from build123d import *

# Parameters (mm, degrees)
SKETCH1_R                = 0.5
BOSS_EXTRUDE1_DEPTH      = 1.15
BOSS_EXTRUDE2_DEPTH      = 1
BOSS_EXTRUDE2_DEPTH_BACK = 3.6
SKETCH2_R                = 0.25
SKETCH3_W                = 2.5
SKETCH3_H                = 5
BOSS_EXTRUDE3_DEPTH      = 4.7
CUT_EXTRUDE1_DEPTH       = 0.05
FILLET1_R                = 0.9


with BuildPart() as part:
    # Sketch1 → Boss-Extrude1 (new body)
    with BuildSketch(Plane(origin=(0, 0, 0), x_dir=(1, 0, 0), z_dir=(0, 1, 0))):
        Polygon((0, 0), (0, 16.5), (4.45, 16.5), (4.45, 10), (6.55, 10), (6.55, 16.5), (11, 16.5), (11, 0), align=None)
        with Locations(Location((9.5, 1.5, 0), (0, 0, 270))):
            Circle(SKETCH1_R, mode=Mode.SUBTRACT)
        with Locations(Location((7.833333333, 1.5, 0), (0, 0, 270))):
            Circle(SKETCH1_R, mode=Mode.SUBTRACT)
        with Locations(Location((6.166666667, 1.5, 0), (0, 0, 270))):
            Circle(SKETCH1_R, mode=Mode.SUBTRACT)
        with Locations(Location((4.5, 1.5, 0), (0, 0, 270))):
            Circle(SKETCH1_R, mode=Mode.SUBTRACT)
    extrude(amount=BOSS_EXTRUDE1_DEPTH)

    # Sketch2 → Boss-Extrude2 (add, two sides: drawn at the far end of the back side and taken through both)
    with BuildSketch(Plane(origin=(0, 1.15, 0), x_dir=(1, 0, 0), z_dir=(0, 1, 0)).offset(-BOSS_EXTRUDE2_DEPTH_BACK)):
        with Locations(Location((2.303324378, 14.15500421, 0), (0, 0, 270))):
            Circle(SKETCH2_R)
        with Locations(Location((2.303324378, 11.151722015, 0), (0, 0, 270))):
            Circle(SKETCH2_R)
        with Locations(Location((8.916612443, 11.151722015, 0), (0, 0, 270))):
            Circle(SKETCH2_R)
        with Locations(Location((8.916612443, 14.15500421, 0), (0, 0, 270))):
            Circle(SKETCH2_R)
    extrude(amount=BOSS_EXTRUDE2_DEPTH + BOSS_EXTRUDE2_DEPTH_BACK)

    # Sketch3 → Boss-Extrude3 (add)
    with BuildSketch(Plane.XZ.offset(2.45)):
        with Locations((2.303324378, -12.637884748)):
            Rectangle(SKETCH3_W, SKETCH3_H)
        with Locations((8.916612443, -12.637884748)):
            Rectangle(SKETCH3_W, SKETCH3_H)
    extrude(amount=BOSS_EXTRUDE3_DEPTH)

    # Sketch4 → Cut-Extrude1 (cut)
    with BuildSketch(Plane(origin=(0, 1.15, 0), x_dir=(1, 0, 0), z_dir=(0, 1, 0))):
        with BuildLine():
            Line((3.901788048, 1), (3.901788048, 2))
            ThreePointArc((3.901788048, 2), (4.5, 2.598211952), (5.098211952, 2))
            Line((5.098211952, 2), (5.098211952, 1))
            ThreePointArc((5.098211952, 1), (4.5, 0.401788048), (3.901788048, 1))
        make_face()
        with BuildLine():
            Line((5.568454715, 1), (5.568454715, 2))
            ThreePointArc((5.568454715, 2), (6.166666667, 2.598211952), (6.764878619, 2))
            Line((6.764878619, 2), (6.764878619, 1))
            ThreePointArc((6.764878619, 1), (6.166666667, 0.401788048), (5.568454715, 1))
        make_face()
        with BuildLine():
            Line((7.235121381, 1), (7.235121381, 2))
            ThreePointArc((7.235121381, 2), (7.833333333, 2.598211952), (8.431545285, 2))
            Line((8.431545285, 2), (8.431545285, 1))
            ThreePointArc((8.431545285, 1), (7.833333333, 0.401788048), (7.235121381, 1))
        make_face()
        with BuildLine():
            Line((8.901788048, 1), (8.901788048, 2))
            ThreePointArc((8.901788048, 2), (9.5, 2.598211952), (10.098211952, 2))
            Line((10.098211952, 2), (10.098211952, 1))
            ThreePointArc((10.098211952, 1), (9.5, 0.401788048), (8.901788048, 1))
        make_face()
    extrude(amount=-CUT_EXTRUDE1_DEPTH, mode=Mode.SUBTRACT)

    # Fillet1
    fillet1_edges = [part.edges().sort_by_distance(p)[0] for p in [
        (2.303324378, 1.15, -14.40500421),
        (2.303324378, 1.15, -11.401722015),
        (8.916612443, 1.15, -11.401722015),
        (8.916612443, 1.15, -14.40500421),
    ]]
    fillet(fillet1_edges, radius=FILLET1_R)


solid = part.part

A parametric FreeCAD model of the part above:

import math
import FreeCAD as App
import Part
import Sketcher
from FreeCAD import Vector
Q = App.Units.Quantity


def edges_at(feature, points):
    """Names of the edges that pass closest to the given points."""
    edges = feature.Shape.Edges
    near = lambda p: min(range(len(edges)), key=lambda i: edges[i].distToShape(Part.Vertex(*p))[0])
    return sorted({f"Edge{near(p) + 1}" for p in points})

doc = App.newDocument("Part")
body = doc.addObject("PartDesign::Body", "Body")

# Sketch on XZ plane
sketch1 = body.newObject("Sketcher::SketchObject", "Sketch")
sketch1.AttachmentSupport = (doc.getObject("XZ_Plane"), [""])
sketch1.MapMode = "FlatFace"
sketch1.addGeometry(Part.LineSegment(Vector(0, -16.5, 0), Vector(0, 0, 0)), False)
sketch1.addGeometry(Part.LineSegment(Vector(0, 0, 0), Vector(11, 0, 0)), False)
sketch1.addGeometry(Part.LineSegment(Vector(11, 0, 0), Vector(11, -16.5, 0)), False)
sketch1.addGeometry(Part.LineSegment(Vector(11, -16.5, 0), Vector(6.5, -16.5, 0)), False)
sketch1.addGeometry(Part.LineSegment(Vector(6.5, -16.5, 0), Vector(6.5, -10, 0)), False)
sketch1.addGeometry(Part.LineSegment(Vector(6.5, -10, 0), Vector(4.5, -10, 0)), False)
sketch1.addGeometry(Part.LineSegment(Vector(4.5, -10, 0), Vector(4.5, -16.5, 0)), False)
sketch1.addGeometry(Part.LineSegment(Vector(4.5, -16.5, 0), Vector(0, -16.5, 0)), False)
sketch1.addGeometry(Part.Circle(Vector(9.5, -1.5, 0), Vector(0, 0, 1), 0.5), False)
sketch1.addGeometry(Part.Circle(Vector(7.8, -1.5, 0), Vector(0, 0, 1), 0.5), False)
sketch1.addGeometry(Part.Circle(Vector(6.2, -1.5, 0), Vector(0, 0, 1), 0.5), False)
sketch1.addGeometry(Part.Circle(Vector(4.5, -1.5, 0), Vector(0, 0, 1), 0.5), False)
sketch1.addConstraint(Sketcher.Constraint("Coincident", 0, 2, 1, 1))
sketch1.addConstraint(Sketcher.Constraint("Coincident", 1, 2, 2, 1))
sketch1.addConstraint(Sketcher.Constraint("Coincident", 2, 2, 3, 1))
sketch1.addConstraint(Sketcher.Constraint("Coincident", 3, 2, 4, 1))
sketch1.addConstraint(Sketcher.Constraint("Coincident", 4, 2, 5, 1))
sketch1.addConstraint(Sketcher.Constraint("Coincident", 5, 2, 6, 1))
sketch1.addConstraint(Sketcher.Constraint("Coincident", 6, 2, 7, 1))
sketch1.addConstraint(Sketcher.Constraint("Coincident", 7, 2, 0, 1))
sketch1.addConstraint(Sketcher.Constraint("Vertical", 0))
sketch1.addConstraint(Sketcher.Constraint("Horizontal", 1))
sketch1.addConstraint(Sketcher.Constraint("Vertical", 2))
sketch1.addConstraint(Sketcher.Constraint("Horizontal", 3))
sketch1.addConstraint(Sketcher.Constraint("Vertical", 4))
sketch1.addConstraint(Sketcher.Constraint("Horizontal", 5))
sketch1.addConstraint(Sketcher.Constraint("Vertical", 6))
sketch1.addConstraint(Sketcher.Constraint("Horizontal", 7))
sketch1.addConstraint(Sketcher.Constraint("Coincident", 0, 2, -1, 1))
sketch1.addConstraint(Sketcher.Constraint("Equal", 8, 9))
sketch1.addConstraint(Sketcher.Constraint("Equal", 9, 10))
sketch1.addConstraint(Sketcher.Constraint("Equal", 10, 11))
sketch1.addConstraint(Sketcher.Constraint("Horizontal", 8, 3, 9, 3))
sketch1.addConstraint(Sketcher.Constraint("Horizontal", 9, 3, 10, 3))
sketch1.addConstraint(Sketcher.Constraint("Horizontal", 10, 3, 11, 3))
sketch1.addConstraint(Sketcher.Constraint("Horizontal", 3, 2, 6, 2))
sketch1.addConstraint(Sketcher.Constraint("Equal", 3, 7))
sketch1.addConstraint(Sketcher.Constraint("Diameter", 8, Q("1 mm")))
sketch1.addConstraint(Sketcher.Constraint("DistanceX", 1, 1, 1, 2, Q("11 mm")))
sketch1.addConstraint(Sketcher.Constraint("DistanceX", 5, 2, 5, 1, Q("2.1 mm")))
sketch1.addConstraint(Sketcher.Constraint("DistanceY", 0, 1, 0, 2, Q("16.5 mm")))
sketch1.addConstraint(Sketcher.Constraint("DistanceY", 4, 1, 4, 2, Q("6.5 mm")))
sketch1.addConstraint(Sketcher.Constraint("DistanceX", 11, 3, 8, 3, Q("5 mm")))
sketch1.addConstraint(Sketcher.Constraint("DistanceY", 2, 2, 8, 3, Q("15 mm")))
sketch1.addConstraint(Sketcher.Constraint("DistanceX", -1, 1, 8, 3, Q("9.5 mm")))
sketch1.addConstraint(Sketcher.Constraint("DistanceX", -1, 1, 9, 3, Q("7.833333 mm")))
sketch1.addConstraint(Sketcher.Constraint("DistanceX", -1, 1, 10, 3, Q("6.166667 mm")))
pad1 = body.newObject("PartDesign::Pad", "Pad")
pad1.Profile = sketch1
pad1.Length = 1.15
pad1.Reversed = True

# Sketch on XZ plane
sketch2 = body.newObject("Sketcher::SketchObject", "Sketch001")
sketch2.AttachmentSupport = (doc.getObject("XZ_Plane"), [""])
sketch2.MapMode = "FlatFace"
sketch2.AttachmentOffset = App.Placement(Vector(0, 0, -1.15), App.Rotation())
sketch2.addGeometry(Part.Circle(Vector(2.3, -14.16, 0), Vector(0, 0, 1), 0.25), False)
sketch2.addGeometry(Part.Circle(Vector(2.3, -11.15, 0), Vector(0, 0, 1), 0.25), False)
sketch2.addGeometry(Part.Circle(Vector(8.92, -11.15, 0), Vector(0, 0, 1), 0.25), False)
sketch2.addGeometry(Part.Circle(Vector(8.92, -14.16, 0), Vector(0, 0, 1), 0.25), False)
sketch2.addConstraint(Sketcher.Constraint("Equal", 0, 1))
sketch2.addConstraint(Sketcher.Constraint("Equal", 1, 2))
sketch2.addConstraint(Sketcher.Constraint("Equal", 2, 3))
sketch2.addConstraint(Sketcher.Constraint("Horizontal", 1, 3, 2, 3))
sketch2.addConstraint(Sketcher.Constraint("Horizontal", 0, 3, 3, 3))
sketch2.addConstraint(Sketcher.Constraint("Vertical", 0, 3, 1, 3))
sketch2.addConstraint(Sketcher.Constraint("Vertical", 2, 3, 3, 3))
sketch2.addConstraint(Sketcher.Constraint("Diameter", 0, Q("0.5 mm")))
sketch2.addConstraint(Sketcher.Constraint("DistanceX", 1, 3, 2, 3, Q("6.613288 mm")))
sketch2.addConstraint(Sketcher.Constraint("DistanceX", -1, 1, 0, 3, Q("2.303324 mm")))
sketch2.addConstraint(Sketcher.Constraint("DistanceY", 0, 3, -1, 1, Q("14.155004 mm")))
sketch2.addConstraint(Sketcher.Constraint("DistanceY", 1, 3, -1, 1, Q("11.151722 mm")))
pad2 = body.newObject("PartDesign::Pad", "Pad001")
pad2.Profile = sketch2
pad2.Type = "TwoLengths"
pad2.Length = 1
pad2.Length2 = 3.6
pad2.Reversed = True

# Sketch on XZ plane
sketch3 = body.newObject("Sketcher::SketchObject", "Sketch002")
sketch3.AttachmentSupport = (doc.getObject("XZ_Plane"), [""])
sketch3.MapMode = "FlatFace"
sketch3.AttachmentOffset = App.Placement(Vector(0, 0, 2.45), App.Rotation())
sketch3.addGeometry(Part.LineSegment(Vector(1.1, -10.1, 0), Vector(1.1, -15.1, 0)), False)
sketch3.addGeometry(Part.LineSegment(Vector(1.1, -15.1, 0), Vector(3.6, -15.1, 0)), False)
sketch3.addGeometry(Part.LineSegment(Vector(3.6, -15.1, 0), Vector(3.6, -10.1, 0)), False)
sketch3.addGeometry(Part.LineSegment(Vector(3.6, -10.1, 0), Vector(1.1, -10.1, 0)), False)
sketch3.addGeometry(Part.LineSegment(Vector(7.7, -10.1, 0), Vector(7.7, -15.1, 0)), False)
sketch3.addGeometry(Part.LineSegment(Vector(7.7, -15.1, 0), Vector(10.2, -15.1, 0)), False)
sketch3.addGeometry(Part.LineSegment(Vector(10.2, -15.1, 0), Vector(10.2, -10.1, 0)), False)
sketch3.addGeometry(Part.LineSegment(Vector(10.2, -10.1, 0), Vector(7.7, -10.1, 0)), False)
sketch3.addConstraint(Sketcher.Constraint("Coincident", 0, 2, 1, 1))
sketch3.addConstraint(Sketcher.Constraint("Coincident", 1, 2, 2, 1))
sketch3.addConstraint(Sketcher.Constraint("Coincident", 2, 2, 3, 1))
sketch3.addConstraint(Sketcher.Constraint("Coincident", 3, 2, 0, 1))
sketch3.addConstraint(Sketcher.Constraint("Coincident", 4, 2, 5, 1))
sketch3.addConstraint(Sketcher.Constraint("Coincident", 5, 2, 6, 1))
sketch3.addConstraint(Sketcher.Constraint("Coincident", 6, 2, 7, 1))
sketch3.addConstraint(Sketcher.Constraint("Coincident", 7, 2, 4, 1))
sketch3.addConstraint(Sketcher.Constraint("Vertical", 0))
sketch3.addConstraint(Sketcher.Constraint("Horizontal", 1))
sketch3.addConstraint(Sketcher.Constraint("Vertical", 2))
sketch3.addConstraint(Sketcher.Constraint("Horizontal", 3))
sketch3.addConstraint(Sketcher.Constraint("Vertical", 4))
sketch3.addConstraint(Sketcher.Constraint("Horizontal", 5))
sketch3.addConstraint(Sketcher.Constraint("Vertical", 6))
sketch3.addConstraint(Sketcher.Constraint("Horizontal", 7))
sketch3.addConstraint(Sketcher.Constraint("Horizontal", 1, 2, 4, 2))
sketch3.addConstraint(Sketcher.Constraint("Horizontal", 3, 2, 6, 2))
sketch3.addConstraint(Sketcher.Constraint("Equal", 3, 5))
sketch3.addConstraint(Sketcher.Constraint("DistanceY", 0, 2, 0, 1, Q("5 mm")))
sketch3.addConstraint(Sketcher.Constraint("DistanceX", 1, 1, 1, 2, Q("2.5 mm")))
sketch3.addConstraint(Sketcher.Constraint("DistanceX", 1, 2, 4, 2, Q("4.113288 mm")))
sketch3.addConstraint(Sketcher.Constraint("DistanceX", -1, 1, 0, 2, Q("1.053324 mm")))
sketch3.addConstraint(Sketcher.Constraint("DistanceY", 0, 2, -1, 1, Q("15.137885 mm")))
pad3 = body.newObject("PartDesign::Pad", "Pad002")
pad3.Profile = sketch3
pad3.Length = 4.7

# Sketch on XZ plane
sketch4 = body.newObject("Sketcher::SketchObject", "Sketch003")
sketch4.AttachmentSupport = (doc.getObject("XZ_Plane"), [""])
sketch4.MapMode = "FlatFace"
sketch4.AttachmentOffset = App.Placement(Vector(0, 0, -1.15), App.Rotation())
sketch4.addGeometry(Part.LineSegment(Vector(3.9, -2, 0), Vector(3.9, -1, 0)), False)
sketch4.addGeometry(Part.ArcOfCircle(Part.Circle(Vector(4.5, -1, 0), Vector(0, 0, 1), 0.6), math.radians(0), math.radians(180)), False)
sketch4.addGeometry(Part.LineSegment(Vector(5.1, -1, 0), Vector(5.1, -2, 0)), False)
sketch4.addGeometry(Part.ArcOfCircle(Part.Circle(Vector(4.5, -2, 0), Vector(0, 0, 1), 0.6), math.radians(180), math.radians(360)), False)
sketch4.addGeometry(Part.LineSegment(Vector(5.6, -2, 0), Vector(5.6, -1, 0)), False)
sketch4.addGeometry(Part.ArcOfCircle(Part.Circle(Vector(6.2, -1, 0), Vector(0, 0, 1), 0.6), math.radians(0), math.radians(180)), False)
sketch4.addGeometry(Part.LineSegment(Vector(6.8, -1, 0), Vector(6.8, -2, 0)), False)
sketch4.addGeometry(Part.ArcOfCircle(Part.Circle(Vector(6.2, -2, 0), Vector(0, 0, 1), 0.6), math.radians(180), math.radians(360)), False)
sketch4.addGeometry(Part.LineSegment(Vector(7.2, -2, 0), Vector(7.2, -1, 0)), False)
sketch4.addGeometry(Part.ArcOfCircle(Part.Circle(Vector(7.8, -1, 0), Vector(0, 0, 1), 0.6), math.radians(0), math.radians(180)), False)
sketch4.addGeometry(Part.LineSegment(Vector(8.4, -1, 0), Vector(8.4, -2, 0)), False)
sketch4.addGeometry(Part.ArcOfCircle(Part.Circle(Vector(7.8, -2, 0), Vector(0, 0, 1), 0.6), math.radians(180), math.radians(360)), False)
sketch4.addGeometry(Part.LineSegment(Vector(8.9, -2, 0), Vector(8.9, -1, 0)), False)
sketch4.addGeometry(Part.ArcOfCircle(Part.Circle(Vector(9.5, -1, 0), Vector(0, 0, 1), 0.6), math.radians(0), math.radians(180)), False)
sketch4.addGeometry(Part.LineSegment(Vector(10.1, -1, 0), Vector(10.1, -2, 0)), False)
sketch4.addGeometry(Part.ArcOfCircle(Part.Circle(Vector(9.5, -2, 0), Vector(0, 0, 1), 0.6), math.radians(180), math.radians(360)), False)
sketch4.addConstraint(Sketcher.Constraint("Tangent", 0, 2, 1, 2))
sketch4.addConstraint(Sketcher.Constraint("Tangent", 1, 1, 2, 1))
sketch4.addConstraint(Sketcher.Constraint("Tangent", 2, 2, 3, 2))
sketch4.addConstraint(Sketcher.Constraint("Tangent", 3, 1, 0, 1))
sketch4.addConstraint(Sketcher.Constraint("Tangent", 4, 2, 5, 2))
sketch4.addConstraint(Sketcher.Constraint("Tangent", 5, 1, 6, 1))
sketch4.addConstraint(Sketcher.Constraint("Tangent", 6, 2, 7, 2))
sketch4.addConstraint(Sketcher.Constraint("Tangent", 7, 1, 4, 1))
sketch4.addConstraint(Sketcher.Constraint("Tangent", 8, 2, 9, 2))
sketch4.addConstraint(Sketcher.Constraint("Tangent", 9, 1, 10, 1))
sketch4.addConstraint(Sketcher.Constraint("Tangent", 10, 2, 11, 2))
sketch4.addConstraint(Sketcher.Constraint("Tangent", 11, 1, 8, 1))
sketch4.addConstraint(Sketcher.Constraint("Tangent", 12, 2, 13, 2))
sketch4.addConstraint(Sketcher.Constraint("Tangent", 13, 1, 14, 1))
sketch4.addConstraint(Sketcher.Constraint("Tangent", 14, 2, 15, 2))
sketch4.addConstraint(Sketcher.Constraint("Tangent", 15, 1, 12, 1))
sketch4.addConstraint(Sketcher.Constraint("Vertical", 0))
sketch4.addConstraint(Sketcher.Constraint("Vertical", 2))
sketch4.addConstraint(Sketcher.Constraint("Vertical", 4))
sketch4.addConstraint(Sketcher.Constraint("Vertical", 6))
sketch4.addConstraint(Sketcher.Constraint("Vertical", 8))
sketch4.addConstraint(Sketcher.Constraint("Vertical", 10))
sketch4.addConstraint(Sketcher.Constraint("Vertical", 12))
sketch4.addConstraint(Sketcher.Constraint("Vertical", 14))
sketch4.addConstraint(Sketcher.Constraint("Equal", 3, 5))
sketch4.addConstraint(Sketcher.Constraint("Equal", 7, 9))
sketch4.addConstraint(Sketcher.Constraint("Equal", 11, 13))
sketch4.addConstraint(Sketcher.Constraint("Horizontal", 1, 3, 5, 3))
sketch4.addConstraint(Sketcher.Constraint("Horizontal", 3, 3, 7, 3))
sketch4.addConstraint(Sketcher.Constraint("Horizontal", 5, 3, 9, 3))
sketch4.addConstraint(Sketcher.Constraint("Horizontal", 7, 3, 11, 3))
sketch4.addConstraint(Sketcher.Constraint("Horizontal", 9, 3, 13, 3))
sketch4.addConstraint(Sketcher.Constraint("Horizontal", 11, 3, 15, 3))
sketch4.addConstraint(Sketcher.Constraint("DistanceY", 0, 1, 0, 2, Q("1 mm")))
sketch4.addConstraint(Sketcher.Constraint("DistanceY", 1, 3, -1, 1, Q("1 mm")))
sketch4.addConstraint(Sketcher.Constraint("DistanceX", 1, 3, 13, 3, Q("5 mm")))
sketch4.addConstraint(Sketcher.Constraint("DistanceX", -1, 1, 1, 3, Q("4.5 mm")))
sketch4.addConstraint(Sketcher.Constraint("Radius", 1, Q("0.598212 mm")))
sketch4.addConstraint(Sketcher.Constraint("DistanceX", -1, 1, 5, 1, Q("6.764879 mm")))
sketch4.addConstraint(Sketcher.Constraint("DistanceX", -1, 1, 8, 2, Q("7.235121 mm")))
pocket1 = body.newObject("PartDesign::Pocket", "Pocket")
pocket1.Profile = sketch4
pocket1.Length = 0.05
pocket1.Reversed = True
doc.recompute()

fillet = body.newObject("PartDesign::Fillet", "Fillet")
fillet.Base = (pocket1, edges_at(pocket1, [
    (2.303, 1.15, -14.405),
    (2.303, 1.15, -11.402),
    (8.917, 1.15, -11.402),
    (8.917, 1.15, -14.405),
]))
fillet.Radius = 0.9

doc.recompute()
